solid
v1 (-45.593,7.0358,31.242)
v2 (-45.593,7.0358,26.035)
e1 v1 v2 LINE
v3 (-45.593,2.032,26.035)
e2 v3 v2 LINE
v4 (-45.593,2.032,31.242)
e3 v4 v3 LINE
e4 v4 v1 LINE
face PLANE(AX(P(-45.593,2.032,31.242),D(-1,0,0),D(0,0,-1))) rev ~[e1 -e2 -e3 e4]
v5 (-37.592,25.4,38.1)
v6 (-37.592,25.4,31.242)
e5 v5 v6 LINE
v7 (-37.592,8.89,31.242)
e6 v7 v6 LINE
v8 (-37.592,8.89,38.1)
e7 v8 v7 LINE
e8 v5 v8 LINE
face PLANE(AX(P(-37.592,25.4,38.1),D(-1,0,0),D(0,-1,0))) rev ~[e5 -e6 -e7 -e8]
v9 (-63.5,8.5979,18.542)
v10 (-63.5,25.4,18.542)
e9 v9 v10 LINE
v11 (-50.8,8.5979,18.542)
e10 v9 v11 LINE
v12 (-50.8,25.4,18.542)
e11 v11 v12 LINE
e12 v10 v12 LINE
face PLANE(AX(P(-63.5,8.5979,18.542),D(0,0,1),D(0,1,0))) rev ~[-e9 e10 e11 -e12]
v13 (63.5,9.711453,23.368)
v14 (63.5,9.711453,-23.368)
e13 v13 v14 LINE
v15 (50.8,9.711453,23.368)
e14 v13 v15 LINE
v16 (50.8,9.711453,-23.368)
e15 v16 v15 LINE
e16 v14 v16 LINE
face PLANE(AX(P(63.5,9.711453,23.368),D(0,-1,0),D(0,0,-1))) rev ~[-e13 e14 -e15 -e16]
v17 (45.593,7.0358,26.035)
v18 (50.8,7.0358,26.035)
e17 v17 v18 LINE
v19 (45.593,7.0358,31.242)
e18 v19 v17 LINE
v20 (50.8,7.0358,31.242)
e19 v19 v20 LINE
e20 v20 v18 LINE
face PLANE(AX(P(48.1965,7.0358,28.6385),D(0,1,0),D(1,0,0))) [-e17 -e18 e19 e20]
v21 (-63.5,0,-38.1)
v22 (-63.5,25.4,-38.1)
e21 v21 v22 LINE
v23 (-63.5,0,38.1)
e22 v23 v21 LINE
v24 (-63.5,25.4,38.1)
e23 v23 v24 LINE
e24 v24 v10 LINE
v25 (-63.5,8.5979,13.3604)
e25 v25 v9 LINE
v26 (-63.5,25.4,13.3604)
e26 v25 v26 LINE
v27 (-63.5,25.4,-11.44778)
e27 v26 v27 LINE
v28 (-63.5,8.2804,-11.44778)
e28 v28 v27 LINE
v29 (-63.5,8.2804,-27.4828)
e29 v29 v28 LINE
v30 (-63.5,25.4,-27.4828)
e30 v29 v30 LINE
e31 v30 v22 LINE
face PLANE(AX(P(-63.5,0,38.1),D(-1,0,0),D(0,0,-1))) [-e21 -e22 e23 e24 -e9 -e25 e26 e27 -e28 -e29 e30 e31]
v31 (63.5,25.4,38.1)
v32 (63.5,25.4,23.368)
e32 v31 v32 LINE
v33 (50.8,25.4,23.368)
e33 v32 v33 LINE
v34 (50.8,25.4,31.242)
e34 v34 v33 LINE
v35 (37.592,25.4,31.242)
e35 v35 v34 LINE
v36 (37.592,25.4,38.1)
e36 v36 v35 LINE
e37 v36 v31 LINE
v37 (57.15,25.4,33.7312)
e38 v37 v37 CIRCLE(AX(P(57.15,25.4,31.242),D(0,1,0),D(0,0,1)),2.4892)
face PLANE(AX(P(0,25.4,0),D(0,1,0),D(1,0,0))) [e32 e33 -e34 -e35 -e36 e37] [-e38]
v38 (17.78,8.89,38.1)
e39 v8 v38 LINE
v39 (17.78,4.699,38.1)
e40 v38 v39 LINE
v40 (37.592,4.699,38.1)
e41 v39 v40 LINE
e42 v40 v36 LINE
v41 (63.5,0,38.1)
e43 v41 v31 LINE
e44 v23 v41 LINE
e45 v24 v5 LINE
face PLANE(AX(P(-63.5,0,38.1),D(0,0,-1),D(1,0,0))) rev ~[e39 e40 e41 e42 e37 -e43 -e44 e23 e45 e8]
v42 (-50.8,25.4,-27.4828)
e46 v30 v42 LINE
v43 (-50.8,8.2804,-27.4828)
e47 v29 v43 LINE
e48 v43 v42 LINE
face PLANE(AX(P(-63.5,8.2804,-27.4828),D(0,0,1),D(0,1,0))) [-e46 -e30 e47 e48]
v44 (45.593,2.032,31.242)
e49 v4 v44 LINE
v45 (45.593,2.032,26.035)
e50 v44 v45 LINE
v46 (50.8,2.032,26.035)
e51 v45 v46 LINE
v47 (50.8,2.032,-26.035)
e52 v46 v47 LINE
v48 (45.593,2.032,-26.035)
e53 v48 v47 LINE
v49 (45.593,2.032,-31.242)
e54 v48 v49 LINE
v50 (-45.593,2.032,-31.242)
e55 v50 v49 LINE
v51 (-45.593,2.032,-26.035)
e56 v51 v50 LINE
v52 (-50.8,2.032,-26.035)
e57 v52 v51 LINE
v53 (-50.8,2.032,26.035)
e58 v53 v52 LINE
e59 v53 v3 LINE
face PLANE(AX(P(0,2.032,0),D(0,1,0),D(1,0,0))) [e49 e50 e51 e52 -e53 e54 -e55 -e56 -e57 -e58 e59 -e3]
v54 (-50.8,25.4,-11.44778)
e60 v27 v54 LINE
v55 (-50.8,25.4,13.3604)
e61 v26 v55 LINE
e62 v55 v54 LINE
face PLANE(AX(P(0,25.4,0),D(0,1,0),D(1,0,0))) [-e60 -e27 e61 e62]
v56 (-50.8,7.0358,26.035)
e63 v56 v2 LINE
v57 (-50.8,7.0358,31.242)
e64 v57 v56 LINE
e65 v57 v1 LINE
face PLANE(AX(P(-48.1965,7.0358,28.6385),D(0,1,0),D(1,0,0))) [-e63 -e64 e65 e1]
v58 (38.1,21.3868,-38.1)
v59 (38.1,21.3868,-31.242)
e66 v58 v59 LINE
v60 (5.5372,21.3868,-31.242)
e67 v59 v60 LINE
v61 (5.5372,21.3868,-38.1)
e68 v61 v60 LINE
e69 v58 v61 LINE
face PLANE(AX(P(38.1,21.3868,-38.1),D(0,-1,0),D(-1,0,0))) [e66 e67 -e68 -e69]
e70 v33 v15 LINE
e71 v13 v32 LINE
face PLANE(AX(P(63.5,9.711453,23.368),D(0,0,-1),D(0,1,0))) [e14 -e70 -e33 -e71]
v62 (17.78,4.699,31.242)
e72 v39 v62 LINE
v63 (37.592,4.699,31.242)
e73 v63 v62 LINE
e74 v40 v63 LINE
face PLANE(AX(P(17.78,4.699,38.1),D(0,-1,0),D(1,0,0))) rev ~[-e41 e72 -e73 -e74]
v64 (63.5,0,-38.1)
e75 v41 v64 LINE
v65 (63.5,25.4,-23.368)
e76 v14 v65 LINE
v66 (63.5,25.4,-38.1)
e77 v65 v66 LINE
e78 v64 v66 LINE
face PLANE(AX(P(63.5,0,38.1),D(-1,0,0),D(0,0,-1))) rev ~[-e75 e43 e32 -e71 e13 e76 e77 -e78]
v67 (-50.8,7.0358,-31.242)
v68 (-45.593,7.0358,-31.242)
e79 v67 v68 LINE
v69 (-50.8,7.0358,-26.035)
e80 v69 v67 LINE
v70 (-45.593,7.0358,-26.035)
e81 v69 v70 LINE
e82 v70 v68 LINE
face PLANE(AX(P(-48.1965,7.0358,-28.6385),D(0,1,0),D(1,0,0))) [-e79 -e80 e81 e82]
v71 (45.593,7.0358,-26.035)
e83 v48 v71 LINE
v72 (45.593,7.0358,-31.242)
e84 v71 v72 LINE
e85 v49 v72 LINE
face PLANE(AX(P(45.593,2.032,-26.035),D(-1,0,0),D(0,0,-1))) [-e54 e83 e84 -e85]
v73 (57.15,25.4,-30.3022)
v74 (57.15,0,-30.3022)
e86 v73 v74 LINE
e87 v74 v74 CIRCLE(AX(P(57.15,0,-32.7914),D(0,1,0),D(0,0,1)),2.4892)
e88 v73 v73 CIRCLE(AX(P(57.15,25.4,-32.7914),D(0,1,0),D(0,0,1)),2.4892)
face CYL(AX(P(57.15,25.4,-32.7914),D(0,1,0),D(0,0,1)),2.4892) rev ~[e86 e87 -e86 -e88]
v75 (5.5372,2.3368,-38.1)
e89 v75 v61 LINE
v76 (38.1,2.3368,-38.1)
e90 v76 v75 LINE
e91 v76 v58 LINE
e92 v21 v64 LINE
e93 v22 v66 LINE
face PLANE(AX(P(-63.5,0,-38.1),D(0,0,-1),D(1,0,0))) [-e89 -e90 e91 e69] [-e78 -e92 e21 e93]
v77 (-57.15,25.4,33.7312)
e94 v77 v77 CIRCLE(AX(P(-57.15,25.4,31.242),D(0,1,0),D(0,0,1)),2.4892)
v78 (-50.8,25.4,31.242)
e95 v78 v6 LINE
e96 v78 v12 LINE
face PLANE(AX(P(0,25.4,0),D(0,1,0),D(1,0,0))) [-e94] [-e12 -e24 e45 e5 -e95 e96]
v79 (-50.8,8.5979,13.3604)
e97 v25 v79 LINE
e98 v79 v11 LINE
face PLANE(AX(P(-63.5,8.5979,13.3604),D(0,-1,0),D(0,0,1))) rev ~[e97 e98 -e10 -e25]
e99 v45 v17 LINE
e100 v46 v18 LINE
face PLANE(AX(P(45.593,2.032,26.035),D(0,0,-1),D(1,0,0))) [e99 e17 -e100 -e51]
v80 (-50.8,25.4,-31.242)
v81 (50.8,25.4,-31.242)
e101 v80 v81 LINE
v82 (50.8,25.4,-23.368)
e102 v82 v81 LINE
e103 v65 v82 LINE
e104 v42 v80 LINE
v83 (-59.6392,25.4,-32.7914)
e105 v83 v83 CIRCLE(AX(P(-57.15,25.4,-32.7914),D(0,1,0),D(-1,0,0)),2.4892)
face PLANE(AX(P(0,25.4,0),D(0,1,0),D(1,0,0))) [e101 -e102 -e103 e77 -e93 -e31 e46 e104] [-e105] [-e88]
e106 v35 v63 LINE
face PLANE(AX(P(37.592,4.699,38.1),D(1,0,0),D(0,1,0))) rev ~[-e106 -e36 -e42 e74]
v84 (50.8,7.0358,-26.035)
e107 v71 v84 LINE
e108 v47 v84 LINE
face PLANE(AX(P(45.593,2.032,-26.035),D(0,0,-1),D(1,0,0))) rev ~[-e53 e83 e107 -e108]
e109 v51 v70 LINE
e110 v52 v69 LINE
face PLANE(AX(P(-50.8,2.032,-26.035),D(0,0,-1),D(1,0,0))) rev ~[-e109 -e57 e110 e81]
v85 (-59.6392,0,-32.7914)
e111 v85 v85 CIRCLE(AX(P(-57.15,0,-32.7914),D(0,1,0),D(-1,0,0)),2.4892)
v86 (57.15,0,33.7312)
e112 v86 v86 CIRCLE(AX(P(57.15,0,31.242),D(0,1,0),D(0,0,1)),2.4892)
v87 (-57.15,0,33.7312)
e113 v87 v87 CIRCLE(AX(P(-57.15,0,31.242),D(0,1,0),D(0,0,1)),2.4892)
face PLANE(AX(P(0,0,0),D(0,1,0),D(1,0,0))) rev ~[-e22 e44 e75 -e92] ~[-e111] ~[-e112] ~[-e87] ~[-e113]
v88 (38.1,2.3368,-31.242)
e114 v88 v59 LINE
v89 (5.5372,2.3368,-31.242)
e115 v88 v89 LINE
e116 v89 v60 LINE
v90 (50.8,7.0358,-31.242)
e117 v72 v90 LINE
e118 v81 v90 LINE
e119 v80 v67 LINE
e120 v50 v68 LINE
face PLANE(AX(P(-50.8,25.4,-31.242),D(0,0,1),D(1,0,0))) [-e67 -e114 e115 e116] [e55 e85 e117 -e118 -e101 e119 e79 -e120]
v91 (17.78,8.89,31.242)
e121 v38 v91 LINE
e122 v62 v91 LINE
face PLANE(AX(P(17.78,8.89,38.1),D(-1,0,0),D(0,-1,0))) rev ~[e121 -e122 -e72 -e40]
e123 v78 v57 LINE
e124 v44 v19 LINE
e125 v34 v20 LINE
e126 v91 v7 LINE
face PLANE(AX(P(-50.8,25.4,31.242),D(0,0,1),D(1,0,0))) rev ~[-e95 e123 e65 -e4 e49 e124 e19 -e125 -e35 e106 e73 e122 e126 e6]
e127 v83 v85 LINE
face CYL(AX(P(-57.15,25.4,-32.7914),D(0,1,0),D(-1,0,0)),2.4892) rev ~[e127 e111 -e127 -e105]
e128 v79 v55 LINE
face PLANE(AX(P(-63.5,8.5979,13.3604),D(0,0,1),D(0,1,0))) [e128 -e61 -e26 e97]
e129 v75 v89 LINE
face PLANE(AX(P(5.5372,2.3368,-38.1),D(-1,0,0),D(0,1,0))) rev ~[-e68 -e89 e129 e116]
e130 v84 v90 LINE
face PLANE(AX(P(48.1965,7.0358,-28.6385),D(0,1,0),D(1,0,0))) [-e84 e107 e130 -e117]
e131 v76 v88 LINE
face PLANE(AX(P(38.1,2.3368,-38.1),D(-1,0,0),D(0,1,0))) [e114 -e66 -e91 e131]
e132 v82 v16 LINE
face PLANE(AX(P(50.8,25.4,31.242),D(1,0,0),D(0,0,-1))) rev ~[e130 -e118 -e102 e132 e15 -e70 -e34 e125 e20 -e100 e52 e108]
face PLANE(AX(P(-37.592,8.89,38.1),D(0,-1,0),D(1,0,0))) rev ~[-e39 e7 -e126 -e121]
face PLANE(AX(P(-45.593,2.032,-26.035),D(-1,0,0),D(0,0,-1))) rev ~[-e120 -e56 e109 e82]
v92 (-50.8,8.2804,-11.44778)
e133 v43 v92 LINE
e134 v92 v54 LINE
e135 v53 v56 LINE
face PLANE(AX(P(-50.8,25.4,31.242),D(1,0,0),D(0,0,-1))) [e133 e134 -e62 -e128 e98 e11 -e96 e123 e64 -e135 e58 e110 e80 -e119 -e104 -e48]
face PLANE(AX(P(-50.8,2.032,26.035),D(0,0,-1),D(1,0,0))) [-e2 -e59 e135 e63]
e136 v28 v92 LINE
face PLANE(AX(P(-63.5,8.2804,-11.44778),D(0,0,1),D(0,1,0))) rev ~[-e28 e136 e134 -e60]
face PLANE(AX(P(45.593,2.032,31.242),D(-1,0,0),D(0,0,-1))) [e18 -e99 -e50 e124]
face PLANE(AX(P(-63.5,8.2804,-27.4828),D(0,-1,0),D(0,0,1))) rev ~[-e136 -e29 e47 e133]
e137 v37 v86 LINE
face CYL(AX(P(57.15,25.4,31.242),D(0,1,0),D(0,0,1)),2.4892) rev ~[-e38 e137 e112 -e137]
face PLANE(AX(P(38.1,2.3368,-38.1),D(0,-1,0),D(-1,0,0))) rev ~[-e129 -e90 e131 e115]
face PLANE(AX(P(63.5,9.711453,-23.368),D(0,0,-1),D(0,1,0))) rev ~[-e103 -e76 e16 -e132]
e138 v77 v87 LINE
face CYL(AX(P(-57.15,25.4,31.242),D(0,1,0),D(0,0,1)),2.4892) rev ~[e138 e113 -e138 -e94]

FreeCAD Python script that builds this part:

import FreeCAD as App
import Part
import Sketcher

V = App.Vector
Q = App.Units.Quantity

doc = App.newDocument("Part")
body = doc.addObject("PartDesign::Body", "Body")

sketch1 = body.newObject("Sketcher::SketchObject", "Sketch")
sketch1.AttachmentSupport = (doc.getObject("XZ_Plane"), [""])
sketch1.MapMode = "FlatFace"
sketch1.addGeometry([
    Part.LineSegment(V(-64, -38, 0), V(-64, 38, 0)),
    Part.LineSegment(V(-64, 38, 0), V(64, 38, 0)),
    Part.LineSegment(V(64, 38, 0), V(64, -38, 0)),
    Part.LineSegment(V(64, -38, 0), V(-64, -38, 0)),
], False)
sketch1.addConstraint([
    Sketcher.Constraint("Coincident", 0, 2, 1, 1),
    Sketcher.Constraint("Coincident", 1, 2, 2, 1),
    Sketcher.Constraint("Coincident", 2, 2, 3, 1),
    Sketcher.Constraint("Coincident", 3, 2, 0, 1),
    Sketcher.Constraint("Vertical", 0),
    Sketcher.Constraint("Horizontal", 1),
    Sketcher.Constraint("Vertical", 2),
    Sketcher.Constraint("Horizontal", 3),
    Sketcher.Constraint("Symmetric", 0, 2, 2, 2, -1, 1),
    Sketcher.Constraint("DistanceX", 1, 1, 1, 2, Q("5 in")),
    Sketcher.Constraint("DistanceY", 0, 1, 0, 2, Q("3 in")),
])
pad1 = body.newObject("PartDesign::Pad", "Pad")
pad1.Profile = sketch1
pad1.Length = Q("1 in")
pad1.Reversed = True

sketch2 = body.newObject("Sketcher::SketchObject", "Sketch001")
sketch2.AttachmentSupport = (doc.getObject("XZ_Plane"), [""])
sketch2.MapMode = "FlatFace"
sketch2.AttachmentOffset = App.Placement(V(0, 0, -1 * 25.4), App.Rotation())
sketch2.addGeometry([
    Part.LineSegment(V(-51, -31, 0), V(-51, 31, 0)),
    Part.LineSegment(V(-51, 31, 0), V(51, 31, 0)),
    Part.LineSegment(V(51, 31, 0), V(51, -31, 0)),
    Part.LineSegment(V(51, -31, 0), V(-51, -31, 0)),
], False)
sketch2.addConstraint([
    Sketcher.Constraint("Coincident", 0, 2, 1, 1),
    Sketcher.Constraint("Coincident", 1, 2, 2, 1),
    Sketcher.Constraint("Coincident", 2, 2, 3, 1),
    Sketcher.Constraint("Coincident", 3, 2, 0, 1),
    Sketcher.Constraint("Vertical", 0),
    Sketcher.Constraint("Horizontal", 1),
    Sketcher.Constraint("Vertical", 2),
    Sketcher.Constraint("Horizontal", 3),
    Sketcher.Constraint("Symmetric", 0, 2, 2, 2, -1, 1),
    Sketcher.Constraint("DistanceX", 1, 1, 1, 2, Q("4 in")),
    Sketcher.Constraint("DistanceY", 0, 1, 0, 2, Q("2.46 in")),
])
pocket1 = body.newObject("PartDesign::Pocket", "Pocket")
pocket1.Profile = sketch2
pocket1.Length = Q("0.92 in")
pocket1.Reversed = True

sketch3 = body.newObject("Sketcher::SketchObject", "Sketch002")
sketch3.AttachmentSupport = (doc.getObject("YZ_Plane"), [""])
sketch3.MapMode = "FlatFace"
sketch3.AttachmentOffset = App.Placement(V(0, 0, 2.5 * 25.4), App.Rotation())
sketch3.addGeometry([
    Part.LineSegment(V(25, 23, 0), V(10, 23, 0)),
    Part.LineSegment(V(10, 23, 0), V(10, -23, 0)),
    Part.LineSegment(V(10, -23, 0), V(25, -23, 0)),
    Part.LineSegment(V(25, -23, 0), V(25, 23, 0)),
], False)
sketch3.addConstraint([
    Sketcher.Constraint("Coincident", 0, 2, 1, 1),
    Sketcher.Constraint("Coincident", 1, 2, 2, 1),
    Sketcher.Constraint("Coincident", 2, 2, 3, 1),
    Sketcher.Constraint("Coincident", 3, 2, 0, 1),
    Sketcher.Constraint("Horizontal", 0),
    Sketcher.Constraint("Vertical", 1),
    Sketcher.Constraint("Horizontal", 2),
    Sketcher.Constraint("Vertical", 3),
    Sketcher.Constraint("DistanceX", -1, 1, 2, 2, Q("1 in")),
    Sketcher.Constraint("DistanceY", 1, 2, 1, 1, Q("1.84 in")),
    Sketcher.Constraint("DistanceY", -1, 1, 0, 2, Q("0.92 in")),
    Sketcher.Constraint("DistanceX", 0, 2, 0, 1, 15.688547),
])
pocket2 = body.newObject("PartDesign::Pocket", "Pocket001")
pocket2.Profile = sketch3
pocket2.Type = "UpToFirst"

sketch4 = body.newObject("Sketcher::SketchObject", "Sketch003")
sketch4.AttachmentSupport = (doc.getObject("XY_Plane"), [""])
sketch4.MapMode = "FlatFace"
sketch4.AttachmentOffset = App.Placement(V(0, 0, 1.5 * 25.4), App.Rotation())
sketch4.addGeometry([
    Part.LineSegment(V(-37.6, 8.9, 0), V(17.8, 8.9, 0)),
    Part.LineSegment(V(17.8, 8.9, 0), V(17.8, 4.7, 0)),
    Part.LineSegment(V(17.8, 4.7, 0), V(37.6, 4.7, 0)),
    Part.LineSegment(V(37.6, 4.7, 0), V(37.6, 25.4, 0)),
    Part.LineSegment(V(37.6, 25.4, 0), V(-37.6, 25.4, 0)),
    Part.LineSegment(V(-37.6, 25.4, 0), V(-37.6, 8.9, 0)),
], False)
sketch4.addConstraint([
    Sketcher.Constraint("Coincident", 0, 2, 1, 1),
    Sketcher.Constraint("Coincident", 1, 2, 2, 1),
    Sketcher.Constraint("Coincident", 2, 2, 3, 1),
    Sketcher.Constraint("Coincident", 3, 2, 4, 1),
    Sketcher.Constraint("Coincident", 4, 2, 5, 1),
    Sketcher.Constraint("Coincident", 5, 2, 0, 1),
    Sketcher.Constraint("Horizontal", 0),
    Sketcher.Constraint("Vertical", 1),
    Sketcher.Constraint("Horizontal", 2),
    Sketcher.Constraint("Vertical", 3),
    Sketcher.Constraint("Horizontal", 4),
    Sketcher.Constraint("Vertical", 5),
    Sketcher.Constraint("DistanceY", -1, 1, 3, 2, Q("1 in")),
    Sketcher.Constraint("DistanceX", 0, 1, 0, 2, Q("2.18 in")),
    Sketcher.Constraint("DistanceX", 2, 1, 2, 2, Q("0.78 in")),
    Sketcher.Constraint("DistanceY", 5, 2, 5, 1, Q("0.65 in")),
    Sketcher.Constraint("DistanceX", -1, 1, 0, 2, Q("0.7 in")),
    Sketcher.Constraint("DistanceY", 1, 2, 1, 1, Q("0.165 in")),
])
pocket3 = body.newObject("PartDesign::Pocket", "Pocket002")
pocket3.Profile = sketch4
pocket3.Type = "UpToFirst"

sketch5 = body.newObject("Sketcher::SketchObject", "Sketch004")
sketch5.AttachmentSupport = (doc.getObject("YZ_Plane"), [""])
sketch5.MapMode = "FlatFace"
sketch5.AttachmentOffset = App.Placement(V(0, 0, -2.5 * 25.4), App.Rotation())
sketch5.addGeometry([
    Part.LineSegment(V(25, 13, 0), V(9, 13, 0)),
    Part.LineSegment(V(9, 13, 0), V(9, 19, 0)),
    Part.LineSegment(V(9, 19, 0), V(25, 19, 0)),
    Part.LineSegment(V(25, 19, 0), V(25, 13, 0)),
], False)
sketch5.addConstraint([
    Sketcher.Constraint("Coincident", 0, 2, 1, 1),
    Sketcher.Constraint("Coincident", 1, 2, 2, 1),
    Sketcher.Constraint("Coincident", 2, 2, 3, 1),
    Sketcher.Constraint("Coincident", 3, 2, 0, 1),
    Sketcher.Constraint("Horizontal", 0),
    Sketcher.Constraint("Vertical", 1),
    Sketcher.Constraint("Horizontal", 2),
    Sketcher.Constraint("Vertical", 3),
    Sketcher.Constraint("DistanceX", -1, 1, 2, 2, Q("1 in")),
    Sketcher.Constraint("DistanceY", 1, 1, 1, 2, Q("0.204 in")),
    Sketcher.Constraint("DistanceY", -1, 1, 1, 2, Q("0.73 in")),
    Sketcher.Constraint("DistanceX", 0, 2, 0, 1, Q("0.6615 in")),
])
pocket4 = body.newObject("PartDesign::Pocket", "Pocket003")
pocket4.Profile = sketch5
pocket4.Type = "UpToFirst"
pocket4.Reversed = True

sketch6 = body.newObject("Sketcher::SketchObject", "Sketch005")
sketch6.AttachmentSupport = (doc.getObject("YZ_Plane"), [""])
sketch6.MapMode = "FlatFace"
sketch6.AttachmentOffset = App.Placement(V(0, 0, -2.5 * 25.4), App.Rotation())
sketch6.addGeometry([
    Part.LineSegment(V(25, -27, 0), V(8, -27, 0)),
    Part.LineSegment(V(8, -27, 0), V(8, -11, 0)),
    Part.LineSegment(V(8, -11, 0), V(25, -11, 0)),
    Part.LineSegment(V(25, -11, 0), V(25, -27, 0)),
], False)
sketch6.addConstraint([
    Sketcher.Constraint("Coincident", 0, 2, 1, 1),
    Sketcher.Constraint("Coincident", 1, 2, 2, 1),
    Sketcher.Constraint("Coincident", 2, 2, 3, 1),
    Sketcher.Constraint("Coincident", 3, 2, 0, 1),
    Sketcher.Constraint("Horizontal", 0),
    Sketcher.Constraint("Vertical", 1),
    Sketcher.Constraint("Horizontal", 2),
    Sketcher.Constraint("Vertical", 3),
    Sketcher.Constraint("DistanceX", -1, 1, 2, 2, Q("1 in")),
    Sketcher.Constraint("DistanceX", 0, 2, 0, 1, Q("0.674 in")),
    Sketcher.Constraint("DistanceY", 1, 1, 1, 2, Q("0.6313 in")),
    Sketcher.Constraint("DistanceY", 0, 2, -1, 1, Q("1.082 in")),
])
pocket5 = body.newObject("PartDesign::Pocket", "Pocket004")
pocket5.Profile = sketch6
pocket5.Type = "UpToFirst"
pocket5.Reversed = True

sketch7 = body.newObject("Sketcher::SketchObject", "Sketch006")
sketch7.AttachmentSupport = (doc.getObject("XY_Plane"), [""])
sketch7.MapMode = "FlatFace"
sketch7.AttachmentOffset = App.Placement(V(0, 0, -1.5 * 25.4), App.Rotation())
sketch7.addGeometry([
    Part.LineSegment(V(38, 21, 0), V(38, 2, 0)),
    Part.LineSegment(V(38, 2, 0), V(6, 2, 0)),
    Part.LineSegment(V(6, 2, 0), V(6, 21, 0)),
    Part.LineSegment(V(6, 21, 0), V(38, 21, 0)),
], False)
sketch7.addConstraint([
    Sketcher.Constraint("Coincident", 0, 2, 1, 1),
    Sketcher.Constraint("Coincident", 1, 2, 2, 1),
    Sketcher.Constraint("Coincident", 2, 2, 3, 1),
    Sketcher.Constraint("Coincident", 3, 2, 0, 1),
    Sketcher.Constraint("Vertical", 0),
    Sketcher.Constraint("Horizontal", 1),
    Sketcher.Constraint("Vertical", 2),
    Sketcher.Constraint("Horizontal", 3),
    Sketcher.Constraint("DistanceY", 0, 2, 0, 1, Q("0.75 in")),
    Sketcher.Constraint("DistanceX", -1, 1, 0, 2, Q("1.5 in")),
    Sketcher.Constraint("DistanceX", 1, 2, 1, 1, Q("1.282 in")),
    Sketcher.Constraint("DistanceY", -1, 1, 0, 2, Q("0.092 in")),
])
pocket6 = body.newObject("PartDesign::Pocket", "Pocket005")
pocket6.Profile = sketch7
pocket6.Type = "UpToFirst"
pocket6.Reversed = True

sketch8 = body.newObject("Sketcher::SketchObject", "Sketch007")
sketch8.AttachmentSupport = (doc.getObject("XZ_Plane"), [""])
sketch8.MapMode = "FlatFace"
sketch8.AttachmentOffset = App.Placement(V(0, 0, -1 * 25.4), App.Rotation())
sketch8.addGeometry([
    Part.Circle(V(-57.1, -32.8, 0), V(0, 0, 1), 2.5),
    Part.Circle(V(-57.1, 31.2, 0), V(0, 0, 1), 2.5),
    Part.Circle(V(57.1, -32.8, 0), V(0, 0, 1), 2.5),
    Part.Circle(V(57.1, 31.2, 0), V(0, 0, 1), 2.5),
], False)
sketch8.addConstraint([
    Sketcher.Constraint("Equal", 0, 1),
    Sketcher.Constraint("Equal", 1, 2),
    Sketcher.Constraint("Equal", 2, 3),
    Sketcher.Constraint("Symmetric", 0, 3, 2, 3, -2),
    Sketcher.Constraint("Symmetric", 1, 3, 3, 3, -2),
    Sketcher.Constraint("Vertical", 0, 3, 1, 3),
    Sketcher.Constraint("Diameter", 0, Q("0.196 in")),
    Sketcher.Constraint("DistanceX", 0, 3, 2, 3, Q("4.5 in")),
    Sketcher.Constraint("DistanceY", -1, 1, 1, 3, Q("1.23 in")),
    Sketcher.Constraint("DistanceY", 0, 3, -1, 1, Q("1.291 in")),
])
pocket7 = body.newObject("PartDesign::Pocket", "Pocket006")
pocket7.Profile = sketch8
pocket7.Type = "ThroughAll"
pocket7.Reversed = True

sketch9 = body.newObject("Sketcher::SketchObject", "Sketch008")
sketch9.AttachmentSupport = (doc.getObject("XZ_Plane"), [""])
sketch9.MapMode = "FlatFace"
sketch9.AttachmentOffset = App.Placement(V(0, 0, -0.08 * 25.4), App.Rotation())
sketch9.addGeometry([
    Part.LineSegment(V(-51, -31, 0), V(-51, -26, 0)),
    Part.LineSegment(V(-51, -26, 0), V(-46, -26, 0)),
    Part.LineSegment(V(-46, -26, 0), V(-46, -31, 0)),
    Part.LineSegment(V(-46, -31, 0), V(-51, -31, 0)),
    Part.LineSegment(V(-51, 26, 0), V(-51, 31, 0)),
    Part.LineSegment(V(-51, 31, 0), V(-46, 31, 0)),
    Part.LineSegment(V(-46, 31, 0), V(-46, 26, 0)),
    Part.LineSegment(V(-46, 26, 0), V(-51, 26, 0)),
    Part.LineSegment(V(46, 26, 0), V(46, 31, 0)),
    Part.LineSegment(V(46, 31, 0), V(51, 31, 0)),
    Part.LineSegment(V(51, 31, 0), V(51, 26, 0)),
    Part.LineSegment(V(51, 26, 0), V(46, 26, 0)),
    Part.LineSegment(V(46, -31, 0), V(46, -26, 0)),
    Part.LineSegment(V(46, -26, 0), V(51, -26, 0)),
    Part.LineSegment(V(51, -26, 0), V(51, -31, 0)),
    Part.LineSegment(V(51, -31, 0), V(46, -31, 0)),
], False)
sketch9.addConstraint([
    Sketcher.Constraint("Coincident", 0, 2, 1, 1),
    Sketcher.Constraint("Coincident", 1, 2, 2, 1),
    Sketcher.Constraint("Coincident", 2, 2, 3, 1),
    Sketcher.Constraint("Coincident", 3, 2, 0, 1),
    Sketcher.Constraint("Coincident", 4, 2, 5, 1),
    Sketcher.Constraint("Coincident", 5, 2, 6, 1),
    Sketcher.Constraint("Coincident", 6, 2, 7, 1),
    Sketcher.Constraint("Coincident", 7, 2, 4, 1),
    Sketcher.Constraint("Coincident", 8, 2, 9, 1),
    Sketcher.Constraint("Coincident", 9, 2, 10, 1),
    Sketcher.Constraint("Coincident", 10, 2, 11, 1),
    Sketcher.Constraint("Coincident", 11, 2, 8, 1),
    Sketcher.Constraint("Coincident", 12, 2, 13, 1),
    Sketcher.Constraint("Coincident", 13, 2, 14, 1),
    Sketcher.Constraint("Coincident", 14, 2, 15, 1),
    Sketcher.Constraint("Coincident", 15, 2, 12, 1),
    Sketcher.Constraint("Vertical", 0),
    Sketcher.Constraint("Horizontal", 1),
    Sketcher.Constraint("Vertical", 2),
    Sketcher.Constraint("Horizontal", 3),
    Sketcher.Constraint("Vertical", 4),
    Sketcher.Constraint("Horizontal", 5),
    Sketcher.Constraint("Vertical", 6),
    Sketcher.Constraint("Horizontal", 7),
    Sketcher.Constraint("Vertical", 8),
    Sketcher.Constraint("Horizontal", 9),
    Sketcher.Constraint("Vertical", 10),
    Sketcher.Constraint("Horizontal", 11),
    Sketcher.Constraint("Vertical", 12),
    Sketcher.Constraint("Horizontal", 13),
    Sketcher.Constraint("Vertical", 14),
    Sketcher.Constraint("Horizontal", 15),
    Sketcher.Constraint("Symmetric", 2, 2, 8, 2, -1, 1),
    Sketcher.Constraint("Symmetric", 0, 2, 10, 2, -1, 1),
    Sketcher.Constraint("Symmetric", 6, 2, 12, 2, -1, 1),
    Sketcher.Constraint("Symmetric", 4, 2, 14, 2, -1, 1),
    Sketcher.Constraint("Symmetric", 5, 2, 8, 2, -2),
    Sketcher.Constraint("Symmetric", 7, 2, 10, 2, -2),
    Sketcher.Constraint("Equal", 15, 0),
    Sketcher.Constraint("DistanceX", 0, 2, -1, 1, Q("2 in")),
    Sketcher.Constraint("DistanceX", 1, 1, 1, 2, Q("0.205 in")),
    Sketcher.Constraint("DistanceY", 2, 2, -1, 1, Q("1.23 in")),
])
pad2 = body.newObject("PartDesign::Pad", "Pad001")
pad2.Profile = sketch9
pad2.Length = Q("0.197 in")
pad2.Reversed = True

doc.recompute()
